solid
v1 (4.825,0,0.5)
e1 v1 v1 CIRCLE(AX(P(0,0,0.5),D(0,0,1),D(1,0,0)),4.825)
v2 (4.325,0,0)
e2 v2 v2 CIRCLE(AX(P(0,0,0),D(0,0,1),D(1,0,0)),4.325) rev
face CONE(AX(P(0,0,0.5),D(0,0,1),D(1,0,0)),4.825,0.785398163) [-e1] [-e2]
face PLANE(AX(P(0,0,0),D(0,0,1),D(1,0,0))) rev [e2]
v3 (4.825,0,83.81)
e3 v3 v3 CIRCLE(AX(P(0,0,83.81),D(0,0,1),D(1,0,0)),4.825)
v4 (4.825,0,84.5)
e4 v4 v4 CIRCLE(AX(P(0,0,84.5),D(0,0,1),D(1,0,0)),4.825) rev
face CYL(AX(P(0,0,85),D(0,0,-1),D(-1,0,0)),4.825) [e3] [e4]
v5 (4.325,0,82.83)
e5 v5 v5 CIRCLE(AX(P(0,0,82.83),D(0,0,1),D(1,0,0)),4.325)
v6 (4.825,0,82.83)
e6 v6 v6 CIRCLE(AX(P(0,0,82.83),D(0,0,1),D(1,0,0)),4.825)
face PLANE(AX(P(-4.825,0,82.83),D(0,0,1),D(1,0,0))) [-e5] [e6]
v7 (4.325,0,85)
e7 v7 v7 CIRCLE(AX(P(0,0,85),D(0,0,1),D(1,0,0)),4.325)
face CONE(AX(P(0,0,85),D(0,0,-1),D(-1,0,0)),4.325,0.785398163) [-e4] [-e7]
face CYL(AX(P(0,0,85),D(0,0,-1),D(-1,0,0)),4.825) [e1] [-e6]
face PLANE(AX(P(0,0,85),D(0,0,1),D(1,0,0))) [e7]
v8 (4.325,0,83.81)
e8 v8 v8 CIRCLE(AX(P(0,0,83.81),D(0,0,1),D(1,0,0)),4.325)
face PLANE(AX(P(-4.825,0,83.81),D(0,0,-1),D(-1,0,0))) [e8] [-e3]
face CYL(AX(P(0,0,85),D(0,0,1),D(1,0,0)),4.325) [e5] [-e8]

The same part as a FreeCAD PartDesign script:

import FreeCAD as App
import Part
import Sketcher

V = App.Vector
Q = App.Units.Quantity


def edges_at(feature, points):
    """Names of the edges that pass closest to the given points."""
    edges = feature.Shape.Edges
    near = lambda p: min(range(len(edges)), key=lambda i: edges[i].distToShape(Part.Vertex(*p))[0])
    return sorted({f"Edge{near(p) + 1}" for p in points})


def add_polygon(sketch, points):
    """Adds a closed chain of lines whose ends are joined by coincident constraints."""
    first, n = sketch.GeometryCount, len(points)
    for a, b in zip(points, points[1:] + points[:1]):
        sketch.addGeometry(Part.LineSegment(App.Vector(*a, 0), App.Vector(*b, 0)), False)
    for i in range(n):
        sketch.addConstraint(Sketcher.Constraint("Coincident", first + i, 2, first + (i + 1) % n, 1))

doc = App.newDocument("Part")
params = doc.addObject("Spreadsheet::Sheet", "Params")
for row, (alias, value) in enumerate([
    ("sketch1_diameter", "9.65 mm"),
    ("pad1_length", "85 mm"),
    ("chamfer_size", "0.5 mm"),
    ("chamfer2_size", "0.5 mm"),
    ("sketch2_width", "0.5 mm"),
    ("sketch2_height", "0.98 mm"),
    ("groove_angle", "360 deg"),
], start=1):
    params.set(f"A{row}", alias)
    params.set(f"B{row}", "=" + value)
    params.setAlias(f"B{row}", alias)

body = doc.addObject("PartDesign::Body", "Body")

# Sketch on XY plane
sketch1 = body.newObject("Sketcher::SketchObject", "Sketch")
sketch1.AttachmentSupport = (doc.getObject("XY_Plane"), [""])
sketch1.MapMode = "FlatFace"
sketch1.addGeometry(Part.Circle(V(0, 0, 0), V(0, 0, 1), 4.8), False)
sketch1.addConstraint([
    Sketcher.Constraint("Coincident", 0, 3, -1, 1),
    Sketcher.Constraint("Diameter", 0, Q("9.65 mm")),
])
sketch1.setExpression("Constraints[1]", "Params.sketch1_diameter")
pad1 = body.newObject("PartDesign::Pad", "Pad")
pad1.Profile = sketch1
pad1.setExpression("Length", "Params.pad1_length")
doc.recompute()

chamfer = body.newObject("PartDesign::Chamfer", "Chamfer")
chamfer.Base = (pad1, edges_at(pad1, [(-4.825, 0, 85)]))
chamfer.setExpression("Size", "Params.chamfer_size")
doc.recompute()

chamfer2 = body.newObject("PartDesign::Chamfer", "Chamfer001")
chamfer2.Base = (chamfer, edges_at(chamfer, [(-4.825, 0, 0)]))
chamfer2.setExpression("Size", "Params.chamfer2_size")

# Sketch on XZ plane
sketch2 = body.newObject("Sketcher::SketchObject", "Sketch001")
sketch2.AttachmentSupport = (doc.getObject("XZ_Plane"), [""])
sketch2.MapMode = "FlatFace"
add_polygon(sketch2, [(-4.8, 82.8), (-4.8, 83.8), (-4.3, 83.8), (-4.3, 82.8)])  # lines 0-3
sketch2.addConstraint([
    Sketcher.Constraint("Vertical", 0),
    Sketcher.Constraint("Horizontal", 1),
    Sketcher.Constraint("Vertical", 2),
    Sketcher.Constraint("Horizontal", 3),
    Sketcher.Constraint("DistanceX", 1, 1, 1, 2, Q("0.5 mm")),
    Sketcher.Constraint("DistanceY", 0, 1, 0, 2, Q("0.98 mm")),
    Sketcher.Constraint("DistanceY", -1, 1, 0, 2, Q("83.81 mm")),
    Sketcher.Constraint("DistanceX", 0, 2, -1, 1, Q("4.825 mm")),
])
sketch2.setExpression("Constraints[8]", "Params.sketch2_width")
sketch2.setExpression("Constraints[9]", "Params.sketch2_height")
groove = body.newObject("PartDesign::Groove", "Groove")
groove.Profile = sketch2
groove.ReferenceAxis = (sketch2, ["V_Axis"])
groove.setExpression("Angle", "Params.groove_angle")

doc.recompute()
